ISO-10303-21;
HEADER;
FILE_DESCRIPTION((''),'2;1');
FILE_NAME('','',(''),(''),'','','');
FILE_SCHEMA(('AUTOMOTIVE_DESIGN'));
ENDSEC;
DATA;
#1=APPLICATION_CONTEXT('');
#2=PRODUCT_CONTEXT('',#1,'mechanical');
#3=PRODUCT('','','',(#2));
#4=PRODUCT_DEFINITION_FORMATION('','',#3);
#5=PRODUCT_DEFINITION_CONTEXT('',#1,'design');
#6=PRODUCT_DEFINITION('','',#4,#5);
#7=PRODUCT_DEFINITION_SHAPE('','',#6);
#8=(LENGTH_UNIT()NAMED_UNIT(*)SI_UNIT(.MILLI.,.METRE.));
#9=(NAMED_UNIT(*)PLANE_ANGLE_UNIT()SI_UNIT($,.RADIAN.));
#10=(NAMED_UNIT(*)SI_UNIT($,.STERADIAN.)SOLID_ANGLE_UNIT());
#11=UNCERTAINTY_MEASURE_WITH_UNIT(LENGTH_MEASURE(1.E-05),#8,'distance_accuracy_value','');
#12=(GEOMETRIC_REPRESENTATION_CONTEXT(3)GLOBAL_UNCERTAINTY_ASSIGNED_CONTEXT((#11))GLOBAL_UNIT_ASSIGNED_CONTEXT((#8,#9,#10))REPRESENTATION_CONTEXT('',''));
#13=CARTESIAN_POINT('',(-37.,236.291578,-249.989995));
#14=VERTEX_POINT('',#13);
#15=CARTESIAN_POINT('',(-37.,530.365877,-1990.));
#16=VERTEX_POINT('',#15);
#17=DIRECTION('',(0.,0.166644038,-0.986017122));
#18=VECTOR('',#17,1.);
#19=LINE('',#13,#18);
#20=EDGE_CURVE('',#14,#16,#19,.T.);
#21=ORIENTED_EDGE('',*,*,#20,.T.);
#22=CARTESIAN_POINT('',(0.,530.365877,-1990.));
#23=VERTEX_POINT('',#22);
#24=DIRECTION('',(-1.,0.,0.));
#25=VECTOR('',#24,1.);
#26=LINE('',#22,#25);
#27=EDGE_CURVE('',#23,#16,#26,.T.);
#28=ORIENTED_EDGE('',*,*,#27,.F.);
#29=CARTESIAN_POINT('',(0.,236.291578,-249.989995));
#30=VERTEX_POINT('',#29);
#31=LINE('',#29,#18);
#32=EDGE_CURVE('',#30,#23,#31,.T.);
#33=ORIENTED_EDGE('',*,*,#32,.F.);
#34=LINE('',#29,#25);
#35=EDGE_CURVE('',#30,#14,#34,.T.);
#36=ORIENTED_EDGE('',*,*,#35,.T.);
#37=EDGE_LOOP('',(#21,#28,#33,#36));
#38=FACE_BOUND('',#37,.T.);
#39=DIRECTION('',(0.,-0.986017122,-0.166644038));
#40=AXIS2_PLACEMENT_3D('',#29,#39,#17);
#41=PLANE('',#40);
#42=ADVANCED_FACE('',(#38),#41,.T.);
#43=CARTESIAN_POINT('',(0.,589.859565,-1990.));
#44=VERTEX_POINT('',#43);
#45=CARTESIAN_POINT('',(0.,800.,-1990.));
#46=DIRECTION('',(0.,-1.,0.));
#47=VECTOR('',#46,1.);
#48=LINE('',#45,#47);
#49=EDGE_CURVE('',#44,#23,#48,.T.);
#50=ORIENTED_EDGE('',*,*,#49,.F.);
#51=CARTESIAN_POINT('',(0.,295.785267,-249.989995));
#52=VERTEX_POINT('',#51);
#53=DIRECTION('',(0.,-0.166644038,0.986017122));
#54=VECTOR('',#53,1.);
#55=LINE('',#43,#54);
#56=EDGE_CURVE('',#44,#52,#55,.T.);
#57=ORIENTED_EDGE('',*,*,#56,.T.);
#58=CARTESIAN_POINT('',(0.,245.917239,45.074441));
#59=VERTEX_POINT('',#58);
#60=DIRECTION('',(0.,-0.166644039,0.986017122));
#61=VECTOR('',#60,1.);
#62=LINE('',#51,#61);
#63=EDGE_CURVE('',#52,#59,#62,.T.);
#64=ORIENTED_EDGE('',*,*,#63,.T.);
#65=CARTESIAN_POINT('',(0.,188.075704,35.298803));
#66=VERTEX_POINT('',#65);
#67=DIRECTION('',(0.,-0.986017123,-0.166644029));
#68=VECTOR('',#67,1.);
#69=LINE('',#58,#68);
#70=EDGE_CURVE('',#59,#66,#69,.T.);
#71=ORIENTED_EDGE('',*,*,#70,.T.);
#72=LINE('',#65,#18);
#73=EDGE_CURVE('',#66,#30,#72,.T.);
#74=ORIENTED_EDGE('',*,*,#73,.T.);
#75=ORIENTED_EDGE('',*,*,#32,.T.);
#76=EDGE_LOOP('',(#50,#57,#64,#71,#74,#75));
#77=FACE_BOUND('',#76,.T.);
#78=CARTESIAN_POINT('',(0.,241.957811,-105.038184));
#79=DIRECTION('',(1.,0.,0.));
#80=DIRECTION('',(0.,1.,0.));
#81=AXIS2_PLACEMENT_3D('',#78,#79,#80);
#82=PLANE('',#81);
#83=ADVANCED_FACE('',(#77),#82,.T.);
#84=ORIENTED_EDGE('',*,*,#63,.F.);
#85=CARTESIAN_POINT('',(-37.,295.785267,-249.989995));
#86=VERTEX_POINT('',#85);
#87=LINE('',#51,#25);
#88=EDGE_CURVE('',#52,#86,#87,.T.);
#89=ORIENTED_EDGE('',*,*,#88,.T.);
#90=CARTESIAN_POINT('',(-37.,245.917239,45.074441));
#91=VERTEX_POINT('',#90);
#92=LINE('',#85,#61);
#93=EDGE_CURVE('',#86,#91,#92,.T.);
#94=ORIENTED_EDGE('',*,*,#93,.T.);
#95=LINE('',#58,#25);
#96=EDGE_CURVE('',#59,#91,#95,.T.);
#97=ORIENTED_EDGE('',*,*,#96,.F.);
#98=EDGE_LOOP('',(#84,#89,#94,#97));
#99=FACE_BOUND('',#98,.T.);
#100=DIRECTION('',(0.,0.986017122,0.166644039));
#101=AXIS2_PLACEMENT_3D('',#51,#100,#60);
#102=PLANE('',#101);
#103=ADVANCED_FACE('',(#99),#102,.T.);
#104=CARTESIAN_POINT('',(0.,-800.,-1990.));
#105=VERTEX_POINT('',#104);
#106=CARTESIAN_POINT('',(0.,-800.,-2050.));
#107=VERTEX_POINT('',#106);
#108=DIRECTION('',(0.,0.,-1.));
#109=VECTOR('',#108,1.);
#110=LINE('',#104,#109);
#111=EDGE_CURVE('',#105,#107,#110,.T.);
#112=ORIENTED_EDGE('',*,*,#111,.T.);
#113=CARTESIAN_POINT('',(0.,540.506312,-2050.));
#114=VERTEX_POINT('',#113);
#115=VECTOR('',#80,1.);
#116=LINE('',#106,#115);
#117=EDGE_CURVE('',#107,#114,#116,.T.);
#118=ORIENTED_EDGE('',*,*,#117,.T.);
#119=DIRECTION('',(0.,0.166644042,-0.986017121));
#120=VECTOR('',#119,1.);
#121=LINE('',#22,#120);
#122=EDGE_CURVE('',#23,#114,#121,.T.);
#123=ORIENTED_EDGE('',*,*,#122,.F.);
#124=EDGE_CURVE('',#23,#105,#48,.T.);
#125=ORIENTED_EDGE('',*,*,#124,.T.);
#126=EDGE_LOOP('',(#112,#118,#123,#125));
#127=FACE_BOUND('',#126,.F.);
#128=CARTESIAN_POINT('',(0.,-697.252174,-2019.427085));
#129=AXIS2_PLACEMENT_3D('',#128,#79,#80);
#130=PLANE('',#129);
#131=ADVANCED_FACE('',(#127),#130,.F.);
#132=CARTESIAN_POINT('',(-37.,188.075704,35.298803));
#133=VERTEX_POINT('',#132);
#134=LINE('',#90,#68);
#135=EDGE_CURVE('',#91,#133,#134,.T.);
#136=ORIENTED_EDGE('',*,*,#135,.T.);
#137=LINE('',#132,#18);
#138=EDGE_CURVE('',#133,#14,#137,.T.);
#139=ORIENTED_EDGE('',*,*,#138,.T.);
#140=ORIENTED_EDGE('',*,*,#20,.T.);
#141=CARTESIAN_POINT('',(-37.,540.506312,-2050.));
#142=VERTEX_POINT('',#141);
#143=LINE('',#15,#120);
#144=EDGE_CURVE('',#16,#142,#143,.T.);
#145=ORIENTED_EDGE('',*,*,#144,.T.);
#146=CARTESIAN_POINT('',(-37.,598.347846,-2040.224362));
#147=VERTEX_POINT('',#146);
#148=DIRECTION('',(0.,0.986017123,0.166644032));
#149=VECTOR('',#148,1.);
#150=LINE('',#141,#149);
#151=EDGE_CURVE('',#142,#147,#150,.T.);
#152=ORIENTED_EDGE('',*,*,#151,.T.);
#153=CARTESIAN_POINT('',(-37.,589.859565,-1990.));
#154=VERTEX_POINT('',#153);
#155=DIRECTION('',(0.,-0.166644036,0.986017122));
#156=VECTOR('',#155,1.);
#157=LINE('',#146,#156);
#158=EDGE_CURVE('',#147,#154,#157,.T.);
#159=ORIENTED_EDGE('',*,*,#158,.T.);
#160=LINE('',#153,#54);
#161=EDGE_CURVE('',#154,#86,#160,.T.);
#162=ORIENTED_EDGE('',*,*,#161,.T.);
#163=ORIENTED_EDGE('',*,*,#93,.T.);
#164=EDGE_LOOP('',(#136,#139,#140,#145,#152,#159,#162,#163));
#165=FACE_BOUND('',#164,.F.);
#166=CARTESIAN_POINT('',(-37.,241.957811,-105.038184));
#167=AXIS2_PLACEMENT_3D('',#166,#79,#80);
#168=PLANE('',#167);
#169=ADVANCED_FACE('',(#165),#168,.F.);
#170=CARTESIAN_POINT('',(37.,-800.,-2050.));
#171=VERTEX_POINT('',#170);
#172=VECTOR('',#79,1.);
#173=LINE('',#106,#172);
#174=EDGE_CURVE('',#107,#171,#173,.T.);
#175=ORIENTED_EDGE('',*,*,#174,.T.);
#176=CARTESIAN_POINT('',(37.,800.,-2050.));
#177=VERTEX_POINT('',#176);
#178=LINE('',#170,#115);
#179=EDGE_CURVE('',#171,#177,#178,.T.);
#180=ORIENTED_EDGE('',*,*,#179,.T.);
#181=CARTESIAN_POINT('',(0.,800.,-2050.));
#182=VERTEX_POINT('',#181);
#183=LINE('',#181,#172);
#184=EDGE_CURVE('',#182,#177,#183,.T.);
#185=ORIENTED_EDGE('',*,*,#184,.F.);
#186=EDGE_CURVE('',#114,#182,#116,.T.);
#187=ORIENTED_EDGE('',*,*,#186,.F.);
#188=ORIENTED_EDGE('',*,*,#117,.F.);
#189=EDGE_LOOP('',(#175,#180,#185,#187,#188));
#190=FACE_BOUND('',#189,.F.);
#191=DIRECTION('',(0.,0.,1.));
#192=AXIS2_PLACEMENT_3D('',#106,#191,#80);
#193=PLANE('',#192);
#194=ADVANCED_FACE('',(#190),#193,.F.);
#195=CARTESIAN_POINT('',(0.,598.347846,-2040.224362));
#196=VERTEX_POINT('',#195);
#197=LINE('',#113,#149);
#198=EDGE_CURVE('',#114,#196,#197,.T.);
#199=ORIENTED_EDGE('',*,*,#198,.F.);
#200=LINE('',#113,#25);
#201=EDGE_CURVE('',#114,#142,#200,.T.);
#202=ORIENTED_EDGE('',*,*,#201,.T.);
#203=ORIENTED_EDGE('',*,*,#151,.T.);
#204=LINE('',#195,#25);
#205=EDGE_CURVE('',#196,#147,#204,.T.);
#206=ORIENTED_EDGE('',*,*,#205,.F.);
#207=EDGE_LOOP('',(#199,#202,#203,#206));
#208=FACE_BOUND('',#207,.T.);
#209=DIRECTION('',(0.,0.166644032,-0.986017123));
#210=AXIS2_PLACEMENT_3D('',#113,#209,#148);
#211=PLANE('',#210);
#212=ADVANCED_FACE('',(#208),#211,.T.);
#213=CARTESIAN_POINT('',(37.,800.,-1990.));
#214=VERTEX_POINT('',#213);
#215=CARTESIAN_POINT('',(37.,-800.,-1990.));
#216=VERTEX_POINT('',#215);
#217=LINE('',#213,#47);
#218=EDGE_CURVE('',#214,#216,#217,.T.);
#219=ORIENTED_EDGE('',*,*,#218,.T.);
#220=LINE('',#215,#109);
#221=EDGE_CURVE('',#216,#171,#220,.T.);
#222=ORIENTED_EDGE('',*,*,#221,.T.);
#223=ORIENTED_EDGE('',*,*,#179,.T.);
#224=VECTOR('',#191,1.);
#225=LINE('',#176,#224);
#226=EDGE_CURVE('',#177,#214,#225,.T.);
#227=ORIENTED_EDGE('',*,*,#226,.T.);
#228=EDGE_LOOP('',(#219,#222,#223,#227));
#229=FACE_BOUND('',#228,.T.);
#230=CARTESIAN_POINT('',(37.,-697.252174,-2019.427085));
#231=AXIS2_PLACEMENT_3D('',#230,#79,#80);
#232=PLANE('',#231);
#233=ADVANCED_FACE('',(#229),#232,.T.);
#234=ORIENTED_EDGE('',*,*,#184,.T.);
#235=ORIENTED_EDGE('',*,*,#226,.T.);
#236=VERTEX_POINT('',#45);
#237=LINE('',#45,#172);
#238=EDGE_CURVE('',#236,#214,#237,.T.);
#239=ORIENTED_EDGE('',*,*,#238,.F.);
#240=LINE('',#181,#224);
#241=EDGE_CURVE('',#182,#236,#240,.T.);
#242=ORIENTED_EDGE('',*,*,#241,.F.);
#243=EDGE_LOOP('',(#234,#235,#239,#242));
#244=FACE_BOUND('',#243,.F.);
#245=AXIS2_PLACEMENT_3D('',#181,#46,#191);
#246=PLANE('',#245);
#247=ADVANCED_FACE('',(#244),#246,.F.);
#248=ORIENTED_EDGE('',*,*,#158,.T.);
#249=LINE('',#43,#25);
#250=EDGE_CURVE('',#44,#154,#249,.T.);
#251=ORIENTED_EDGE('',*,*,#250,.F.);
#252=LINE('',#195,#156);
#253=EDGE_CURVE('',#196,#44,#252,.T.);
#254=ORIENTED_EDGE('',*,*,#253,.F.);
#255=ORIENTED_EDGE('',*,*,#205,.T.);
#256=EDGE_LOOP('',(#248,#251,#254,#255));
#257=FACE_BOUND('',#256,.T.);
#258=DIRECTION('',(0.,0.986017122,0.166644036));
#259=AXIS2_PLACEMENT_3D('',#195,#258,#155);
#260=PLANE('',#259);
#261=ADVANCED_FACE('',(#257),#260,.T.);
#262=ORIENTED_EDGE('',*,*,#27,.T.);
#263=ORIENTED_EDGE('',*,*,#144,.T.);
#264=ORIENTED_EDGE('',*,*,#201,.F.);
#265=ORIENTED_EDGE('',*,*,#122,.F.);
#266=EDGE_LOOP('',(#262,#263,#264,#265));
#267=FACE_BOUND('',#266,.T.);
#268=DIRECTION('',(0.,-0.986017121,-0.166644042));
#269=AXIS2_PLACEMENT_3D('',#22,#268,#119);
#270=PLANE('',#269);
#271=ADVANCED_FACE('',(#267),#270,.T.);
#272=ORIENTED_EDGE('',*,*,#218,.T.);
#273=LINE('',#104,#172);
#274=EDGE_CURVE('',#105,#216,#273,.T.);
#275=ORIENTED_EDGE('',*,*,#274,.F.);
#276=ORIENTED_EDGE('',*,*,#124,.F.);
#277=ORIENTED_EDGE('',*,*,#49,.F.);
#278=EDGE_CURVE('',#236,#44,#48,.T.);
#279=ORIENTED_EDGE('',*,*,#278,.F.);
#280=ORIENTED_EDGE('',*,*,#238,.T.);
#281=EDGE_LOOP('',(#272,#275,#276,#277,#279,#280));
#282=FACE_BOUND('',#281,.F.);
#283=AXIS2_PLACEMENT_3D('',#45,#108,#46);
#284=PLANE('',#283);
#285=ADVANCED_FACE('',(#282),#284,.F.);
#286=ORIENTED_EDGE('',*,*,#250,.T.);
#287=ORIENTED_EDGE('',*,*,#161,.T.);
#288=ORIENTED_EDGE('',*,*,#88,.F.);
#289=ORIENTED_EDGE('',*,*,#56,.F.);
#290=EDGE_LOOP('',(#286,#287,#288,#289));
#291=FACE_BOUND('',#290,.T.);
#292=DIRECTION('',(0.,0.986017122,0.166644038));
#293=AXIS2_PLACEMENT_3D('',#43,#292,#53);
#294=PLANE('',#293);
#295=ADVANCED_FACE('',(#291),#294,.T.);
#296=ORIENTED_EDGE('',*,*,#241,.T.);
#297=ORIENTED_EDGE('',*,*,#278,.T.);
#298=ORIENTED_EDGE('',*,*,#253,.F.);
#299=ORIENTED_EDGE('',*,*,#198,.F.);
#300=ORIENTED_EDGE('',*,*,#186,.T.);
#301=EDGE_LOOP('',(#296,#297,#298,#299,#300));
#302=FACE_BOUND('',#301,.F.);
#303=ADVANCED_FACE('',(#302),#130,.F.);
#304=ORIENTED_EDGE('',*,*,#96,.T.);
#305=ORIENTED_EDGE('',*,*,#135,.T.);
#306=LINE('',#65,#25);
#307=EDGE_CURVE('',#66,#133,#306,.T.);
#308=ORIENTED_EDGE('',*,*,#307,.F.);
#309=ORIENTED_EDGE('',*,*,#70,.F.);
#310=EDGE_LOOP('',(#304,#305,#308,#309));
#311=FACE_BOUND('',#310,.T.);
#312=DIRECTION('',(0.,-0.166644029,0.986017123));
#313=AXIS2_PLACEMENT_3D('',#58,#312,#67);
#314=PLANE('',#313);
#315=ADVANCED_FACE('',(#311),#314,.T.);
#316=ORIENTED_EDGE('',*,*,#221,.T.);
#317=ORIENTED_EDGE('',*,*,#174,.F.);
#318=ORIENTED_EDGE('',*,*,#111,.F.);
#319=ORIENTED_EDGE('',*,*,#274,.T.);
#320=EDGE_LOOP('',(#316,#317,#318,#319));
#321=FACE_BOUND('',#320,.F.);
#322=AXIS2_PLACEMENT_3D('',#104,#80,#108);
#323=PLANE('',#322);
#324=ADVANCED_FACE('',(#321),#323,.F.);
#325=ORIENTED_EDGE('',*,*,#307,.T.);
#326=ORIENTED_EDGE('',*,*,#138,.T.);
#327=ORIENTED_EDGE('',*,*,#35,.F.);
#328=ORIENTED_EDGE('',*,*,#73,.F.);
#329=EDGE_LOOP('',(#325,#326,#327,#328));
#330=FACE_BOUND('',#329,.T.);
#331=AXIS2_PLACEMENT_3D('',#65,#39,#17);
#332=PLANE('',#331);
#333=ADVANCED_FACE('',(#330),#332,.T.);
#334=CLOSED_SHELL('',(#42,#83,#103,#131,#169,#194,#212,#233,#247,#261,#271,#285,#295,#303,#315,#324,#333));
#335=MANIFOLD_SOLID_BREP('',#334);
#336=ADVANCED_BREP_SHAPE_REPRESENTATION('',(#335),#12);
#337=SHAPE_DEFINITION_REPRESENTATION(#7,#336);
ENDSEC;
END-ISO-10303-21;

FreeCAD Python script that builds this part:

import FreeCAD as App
import Part
import Sketcher
from FreeCAD import Vector


def add_polygon(sketch, points):
    """Adds a closed chain of lines whose ends are joined by coincident constraints."""
    first, n = sketch.GeometryCount, len(points)
    for a, b in zip(points, points[1:] + points[:1]):
        sketch.addGeometry(Part.LineSegment(App.Vector(*a, 0), App.Vector(*b, 0)), False)
    for i in range(n):
        sketch.addConstraint(Sketcher.Constraint("Coincident", first + i, 2, first + (i + 1) % n, 1))

doc = App.newDocument("Part")
params = doc.addObject("Spreadsheet::Sheet", "Params")
for row, (alias, value) in enumerate([
    ("sketch1_width", "1600 mm"),
    ("sketch1_height", "60 mm"),
    ("pad1_length", "37 mm"),
    ("pad2_length", "37 mm"),
], start=1):
    params.set(f"A{row}", alias)
    params.set(f"B{row}", "=" + value)
    params.setAlias(f"B{row}", alias)

body = doc.addObject("PartDesign::Body", "Body")

sketch1 = body.newObject("Sketcher::SketchObject", "Sketch")
sketch1.AttachmentSupport = (doc.getObject("YZ_Plane"), [""])
sketch1.MapMode = "FlatFace"
add_polygon(sketch1, [(-800, -1990), (-800, -2050), (800, -2050), (800, -1990)])
sketch1.addConstraint([
    Sketcher.Constraint("Vertical", 0),
    Sketcher.Constraint("Horizontal", 1),
    Sketcher.Constraint("Vertical", 2),
    Sketcher.Constraint("Horizontal", 3),
    Sketcher.Constraint("DistanceX", 1, 1, 1, 2, 1600.0),
    Sketcher.Constraint("DistanceY", 0, 2, 0, 1, 60.0),
    Sketcher.Constraint("DistanceX", 0, 2, -1, 1, 800.0),
    Sketcher.Constraint("DistanceY", 0, 2, -1, 1, 2050.0),
])
sketch1.setExpression("Constraints[8]", "Params.sketch1_width")
sketch1.setExpression("Constraints[9]", "Params.sketch1_height")
pad1 = body.newObject("PartDesign::Pad", "Pad")
pad1.Profile = sketch1
pad1.setExpression("Length", "Params.pad1_length")

sketch2 = body.newObject("Sketcher::SketchObject", "Sketch001")
sketch2.AttachmentSupport = (doc.getObject("YZ_Plane"), [""])
sketch2.MapMode = "FlatFace"
add_polygon(sketch2, [(188.075704, 35.298803), (236.291578, -249.989995), (530.365877, -1990), (540.506312, -2050), (598.347846, -2040.224362), (589.859565, -1990), (295.785267, -249.989995), (245.917239, 45.074441)])
sketch2.addConstraint([
    Sketcher.Constraint("DistanceY", 1, 2, -1, 1, 1990.0),
    Sketcher.Constraint("DistanceY", 2, 2, -1, 1, 2050.0),
    Sketcher.Constraint("DistanceY", 4, 2, -1, 1, 1990.0),
    Sketcher.Constraint("DistanceX", 0, 2, 1, 2, 294.074299),
    Sketcher.Constraint("DistanceX", 5, 2, 4, 2, 294.074298),
    Sketcher.Constraint("DistanceY", 0, 2, 7, 2, 285.288798),
    Sketcher.Constraint("DistanceY", 5, 2, 7, 2, 285.288798),
    Sketcher.Constraint("Distance", 2, 60.85087),
    Sketcher.Constraint("DistanceX", -1, 1, 2, 2, 540.506312),
    Sketcher.Constraint("DistanceY", 3, 2, -1, 1, 2040.224362),
    Sketcher.Constraint("DistanceX", -1, 1, 6, 2, 245.917239),
    Sketcher.Constraint("DistanceY", -1, 1, 6, 2, 45.074441),
    Sketcher.Constraint("DistanceX", 1, 2, 3, 2, 67.981969),
    Sketcher.Constraint("DistanceX", 4, 2, 3, 2, 8.488281),
    Sketcher.Constraint("DistanceY", 7, 2, 6, 2, 9.775638),
    Sketcher.Constraint("DistanceX", 7, 2, 4, 2, 401.783861),
])
pad2 = body.newObject("PartDesign::Pad", "Pad001")
pad2.Profile = sketch2
pad2.setExpression("Length", "Params.pad2_length")
pad2.Reversed = True

doc.recompute()
